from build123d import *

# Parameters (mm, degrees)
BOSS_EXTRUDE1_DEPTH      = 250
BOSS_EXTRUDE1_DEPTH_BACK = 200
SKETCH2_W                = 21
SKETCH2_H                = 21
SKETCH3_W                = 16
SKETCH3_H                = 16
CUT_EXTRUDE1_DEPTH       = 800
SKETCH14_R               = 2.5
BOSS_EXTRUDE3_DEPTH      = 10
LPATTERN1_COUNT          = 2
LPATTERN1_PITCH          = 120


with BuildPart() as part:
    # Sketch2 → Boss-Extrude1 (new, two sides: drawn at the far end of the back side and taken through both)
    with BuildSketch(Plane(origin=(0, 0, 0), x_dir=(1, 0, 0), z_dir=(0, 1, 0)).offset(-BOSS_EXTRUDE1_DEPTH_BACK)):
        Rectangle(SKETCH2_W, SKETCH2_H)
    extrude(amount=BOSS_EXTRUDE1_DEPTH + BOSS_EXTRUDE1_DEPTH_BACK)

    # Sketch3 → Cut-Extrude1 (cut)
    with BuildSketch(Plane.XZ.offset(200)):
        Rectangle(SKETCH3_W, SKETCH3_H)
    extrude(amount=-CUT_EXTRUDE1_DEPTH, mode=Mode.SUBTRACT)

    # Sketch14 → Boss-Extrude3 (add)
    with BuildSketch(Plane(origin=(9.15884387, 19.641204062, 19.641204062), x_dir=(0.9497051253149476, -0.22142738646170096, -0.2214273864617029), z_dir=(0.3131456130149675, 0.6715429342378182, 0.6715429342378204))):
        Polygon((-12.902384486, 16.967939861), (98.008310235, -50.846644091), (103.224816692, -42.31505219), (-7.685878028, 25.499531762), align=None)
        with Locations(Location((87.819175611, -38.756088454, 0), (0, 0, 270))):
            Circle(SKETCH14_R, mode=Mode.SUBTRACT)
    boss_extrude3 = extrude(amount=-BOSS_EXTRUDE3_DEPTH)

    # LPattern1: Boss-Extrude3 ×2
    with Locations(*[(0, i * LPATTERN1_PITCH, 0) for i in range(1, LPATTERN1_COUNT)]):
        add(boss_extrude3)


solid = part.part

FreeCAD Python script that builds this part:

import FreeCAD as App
import Part
import Sketcher

doc = App.newDocument("Part")
body = doc.addObject("PartDesign::Body", "Body")

sketch1 = body.newObject("Sketcher::SketchObject", "Sketch")
sketch1.AttachmentSupport = (doc.getObject("XZ_Plane"), [""])
sketch1.MapMode = "FlatFace"
sketch1.addGeometry([
    Part.LineSegment(App.Vector(-10, -10, 0), App.Vector(-10, 10, 0)),
    Part.LineSegment(App.Vector(-10, 10, 0), App.Vector(10, 10, 0)),
    Part.LineSegment(App.Vector(10, 10, 0), App.Vector(10, -10, 0)),
    Part.LineSegment(App.Vector(10, -10, 0), App.Vector(-10, -10, 0)),
], False)
sketch1.addConstraint([
    Sketcher.Constraint("Coincident", 0, 2, 1, 1),
    Sketcher.Constraint("Coincident", 1, 2, 2, 1),
    Sketcher.Constraint("Coincident", 2, 2, 3, 1),
    Sketcher.Constraint("Coincident", 3, 2, 0, 1),
    Sketcher.Constraint("Vertical", 0),
    Sketcher.Constraint("Horizontal", 1),
    Sketcher.Constraint("Vertical", 2),
    Sketcher.Constraint("Horizontal", 3),
    Sketcher.Constraint("Symmetric", 0, 2, 2, 2, -1, 1),
    Sketcher.Constraint("Equal", 3, 0),
    Sketcher.Constraint("DistanceX", 1, 1, 1, 2, 21.0),
])
pad1 = body.newObject("PartDesign::Pad", "Pad")
pad1.Profile = sketch1
pad1.Type = "TwoLengths"
pad1.Length = 250
pad1.Length2 = 200
pad1.Reversed = True

sketch2 = body.newObject("Sketcher::SketchObject", "Sketch001")
sketch2.AttachmentSupport = (doc.getObject("XZ_Plane"), [""])
sketch2.MapMode = "FlatFace"
sketch2.AttachmentOffset = App.Placement(App.Vector(0, 0, 200), App.Rotation())
sketch2.addGeometry([
    Part.LineSegment(App.Vector(-8, 8, 0), App.Vector(-8, -8, 0)),
    Part.LineSegment(App.Vector(-8, -8, 0), App.Vector(8, -8, 0)),
    Part.LineSegment(App.Vector(8, -8, 0), App.Vector(8, 8, 0)),
    Part.LineSegment(App.Vector(8, 8, 0), App.Vector(-8, 8, 0)),
], False)
sketch2.addConstraint([
    Sketcher.Constraint("Coincident", 0, 2, 1, 1),
    Sketcher.Constraint("Coincident", 1, 2, 2, 1),
    Sketcher.Constraint("Coincident", 2, 2, 3, 1),
    Sketcher.Constraint("Coincident", 3, 2, 0, 1),
    Sketcher.Constraint("Vertical", 0),
    Sketcher.Constraint("Horizontal", 1),
    Sketcher.Constraint("Vertical", 2),
    Sketcher.Constraint("Horizontal", 3),
    Sketcher.Constraint("Symmetric", 0, 2, 2, 2, -1, 1),
    Sketcher.Constraint("Equal", 3, 0),
    Sketcher.Constraint("DistanceX", 1, 1, 1, 2, 16.0),
])
pocket1 = body.newObject("PartDesign::Pocket", "Pocket")
pocket1.Profile = sketch2
pocket1.Length = 800

sketch3 = body.newObject("Sketcher::SketchObject", "Sketch002")
sketch3.Placement = App.Placement(App.Vector(9.158844, 19.641204, 19.641204), App.Rotation(App.Vector(0.949705125, -0.221427386, -0.221427386), App.Vector(0, 0.707106781, -0.707106781), App.Vector(0.313145613, 0.671542934, 0.671542934), "ZXY"))
sketch3.addGeometry([
    Part.LineSegment(App.Vector(-12.9, 17, 0), App.Vector(98, -50.8, 0)),
    Part.LineSegment(App.Vector(98, -50.8, 0), App.Vector(103.2, -42.3, 0)),
    Part.LineSegment(App.Vector(103.2, -42.3, 0), App.Vector(-7.7, 25.5, 0)),
    Part.LineSegment(App.Vector(-7.7, 25.5, 0), App.Vector(-12.9, 17, 0)),
    Part.Circle(App.Vector(87.8, -38.8, 0), App.Vector(0, 0, 1), 2.5),
], False)
sketch3.addConstraint([
    Sketcher.Constraint("Coincident", 0, 2, 1, 1),
    Sketcher.Constraint("Coincident", 1, 2, 2, 1),
    Sketcher.Constraint("Coincident", 2, 2, 3, 1),
    Sketcher.Constraint("Coincident", 3, 2, 0, 1),
    Sketcher.Constraint("Perpendicular", 0, 1),
    Sketcher.Constraint("Perpendicular", 1, 2),
    Sketcher.Constraint("Perpendicular", 2, 3),
    Sketcher.Constraint("Diameter", 4, 5.0),
    Sketcher.Constraint("Distance", 0, 130.0),
    Sketcher.Constraint("Distance", 1, 10.0),
    Sketcher.Constraint("DistanceX", 3, 2, 1, 2, 116.127201),
    Sketcher.Constraint("DistanceY", 4, 3, -1, 1, 38.756088),
    Sketcher.Constraint("DistanceX", -1, 1, 0, 2, 98.00831),
    Sketcher.Constraint("DistanceY", -1, 1, 2, 2, 25.499532),
    Sketcher.Constraint("DistanceX", 4, 3, 1, 2, 15.405641),
])
pad2 = body.newObject("PartDesign::Pad", "Pad001")
pad2.Profile = sketch3
pad2.Length = 10
pad2.Reversed = True
doc.recompute()

linearpattern = body.newObject("PartDesign::LinearPattern", "LinearPattern")
linearpattern.Originals = [pad2]
linearpattern.Direction = (doc.getObject("Y_Axis"), [""])
linearpattern.Mode = "offset"
linearpattern.Offset = 120
linearpattern.Occurrences = 2
body.Tip = linearpattern

doc.recompute()
